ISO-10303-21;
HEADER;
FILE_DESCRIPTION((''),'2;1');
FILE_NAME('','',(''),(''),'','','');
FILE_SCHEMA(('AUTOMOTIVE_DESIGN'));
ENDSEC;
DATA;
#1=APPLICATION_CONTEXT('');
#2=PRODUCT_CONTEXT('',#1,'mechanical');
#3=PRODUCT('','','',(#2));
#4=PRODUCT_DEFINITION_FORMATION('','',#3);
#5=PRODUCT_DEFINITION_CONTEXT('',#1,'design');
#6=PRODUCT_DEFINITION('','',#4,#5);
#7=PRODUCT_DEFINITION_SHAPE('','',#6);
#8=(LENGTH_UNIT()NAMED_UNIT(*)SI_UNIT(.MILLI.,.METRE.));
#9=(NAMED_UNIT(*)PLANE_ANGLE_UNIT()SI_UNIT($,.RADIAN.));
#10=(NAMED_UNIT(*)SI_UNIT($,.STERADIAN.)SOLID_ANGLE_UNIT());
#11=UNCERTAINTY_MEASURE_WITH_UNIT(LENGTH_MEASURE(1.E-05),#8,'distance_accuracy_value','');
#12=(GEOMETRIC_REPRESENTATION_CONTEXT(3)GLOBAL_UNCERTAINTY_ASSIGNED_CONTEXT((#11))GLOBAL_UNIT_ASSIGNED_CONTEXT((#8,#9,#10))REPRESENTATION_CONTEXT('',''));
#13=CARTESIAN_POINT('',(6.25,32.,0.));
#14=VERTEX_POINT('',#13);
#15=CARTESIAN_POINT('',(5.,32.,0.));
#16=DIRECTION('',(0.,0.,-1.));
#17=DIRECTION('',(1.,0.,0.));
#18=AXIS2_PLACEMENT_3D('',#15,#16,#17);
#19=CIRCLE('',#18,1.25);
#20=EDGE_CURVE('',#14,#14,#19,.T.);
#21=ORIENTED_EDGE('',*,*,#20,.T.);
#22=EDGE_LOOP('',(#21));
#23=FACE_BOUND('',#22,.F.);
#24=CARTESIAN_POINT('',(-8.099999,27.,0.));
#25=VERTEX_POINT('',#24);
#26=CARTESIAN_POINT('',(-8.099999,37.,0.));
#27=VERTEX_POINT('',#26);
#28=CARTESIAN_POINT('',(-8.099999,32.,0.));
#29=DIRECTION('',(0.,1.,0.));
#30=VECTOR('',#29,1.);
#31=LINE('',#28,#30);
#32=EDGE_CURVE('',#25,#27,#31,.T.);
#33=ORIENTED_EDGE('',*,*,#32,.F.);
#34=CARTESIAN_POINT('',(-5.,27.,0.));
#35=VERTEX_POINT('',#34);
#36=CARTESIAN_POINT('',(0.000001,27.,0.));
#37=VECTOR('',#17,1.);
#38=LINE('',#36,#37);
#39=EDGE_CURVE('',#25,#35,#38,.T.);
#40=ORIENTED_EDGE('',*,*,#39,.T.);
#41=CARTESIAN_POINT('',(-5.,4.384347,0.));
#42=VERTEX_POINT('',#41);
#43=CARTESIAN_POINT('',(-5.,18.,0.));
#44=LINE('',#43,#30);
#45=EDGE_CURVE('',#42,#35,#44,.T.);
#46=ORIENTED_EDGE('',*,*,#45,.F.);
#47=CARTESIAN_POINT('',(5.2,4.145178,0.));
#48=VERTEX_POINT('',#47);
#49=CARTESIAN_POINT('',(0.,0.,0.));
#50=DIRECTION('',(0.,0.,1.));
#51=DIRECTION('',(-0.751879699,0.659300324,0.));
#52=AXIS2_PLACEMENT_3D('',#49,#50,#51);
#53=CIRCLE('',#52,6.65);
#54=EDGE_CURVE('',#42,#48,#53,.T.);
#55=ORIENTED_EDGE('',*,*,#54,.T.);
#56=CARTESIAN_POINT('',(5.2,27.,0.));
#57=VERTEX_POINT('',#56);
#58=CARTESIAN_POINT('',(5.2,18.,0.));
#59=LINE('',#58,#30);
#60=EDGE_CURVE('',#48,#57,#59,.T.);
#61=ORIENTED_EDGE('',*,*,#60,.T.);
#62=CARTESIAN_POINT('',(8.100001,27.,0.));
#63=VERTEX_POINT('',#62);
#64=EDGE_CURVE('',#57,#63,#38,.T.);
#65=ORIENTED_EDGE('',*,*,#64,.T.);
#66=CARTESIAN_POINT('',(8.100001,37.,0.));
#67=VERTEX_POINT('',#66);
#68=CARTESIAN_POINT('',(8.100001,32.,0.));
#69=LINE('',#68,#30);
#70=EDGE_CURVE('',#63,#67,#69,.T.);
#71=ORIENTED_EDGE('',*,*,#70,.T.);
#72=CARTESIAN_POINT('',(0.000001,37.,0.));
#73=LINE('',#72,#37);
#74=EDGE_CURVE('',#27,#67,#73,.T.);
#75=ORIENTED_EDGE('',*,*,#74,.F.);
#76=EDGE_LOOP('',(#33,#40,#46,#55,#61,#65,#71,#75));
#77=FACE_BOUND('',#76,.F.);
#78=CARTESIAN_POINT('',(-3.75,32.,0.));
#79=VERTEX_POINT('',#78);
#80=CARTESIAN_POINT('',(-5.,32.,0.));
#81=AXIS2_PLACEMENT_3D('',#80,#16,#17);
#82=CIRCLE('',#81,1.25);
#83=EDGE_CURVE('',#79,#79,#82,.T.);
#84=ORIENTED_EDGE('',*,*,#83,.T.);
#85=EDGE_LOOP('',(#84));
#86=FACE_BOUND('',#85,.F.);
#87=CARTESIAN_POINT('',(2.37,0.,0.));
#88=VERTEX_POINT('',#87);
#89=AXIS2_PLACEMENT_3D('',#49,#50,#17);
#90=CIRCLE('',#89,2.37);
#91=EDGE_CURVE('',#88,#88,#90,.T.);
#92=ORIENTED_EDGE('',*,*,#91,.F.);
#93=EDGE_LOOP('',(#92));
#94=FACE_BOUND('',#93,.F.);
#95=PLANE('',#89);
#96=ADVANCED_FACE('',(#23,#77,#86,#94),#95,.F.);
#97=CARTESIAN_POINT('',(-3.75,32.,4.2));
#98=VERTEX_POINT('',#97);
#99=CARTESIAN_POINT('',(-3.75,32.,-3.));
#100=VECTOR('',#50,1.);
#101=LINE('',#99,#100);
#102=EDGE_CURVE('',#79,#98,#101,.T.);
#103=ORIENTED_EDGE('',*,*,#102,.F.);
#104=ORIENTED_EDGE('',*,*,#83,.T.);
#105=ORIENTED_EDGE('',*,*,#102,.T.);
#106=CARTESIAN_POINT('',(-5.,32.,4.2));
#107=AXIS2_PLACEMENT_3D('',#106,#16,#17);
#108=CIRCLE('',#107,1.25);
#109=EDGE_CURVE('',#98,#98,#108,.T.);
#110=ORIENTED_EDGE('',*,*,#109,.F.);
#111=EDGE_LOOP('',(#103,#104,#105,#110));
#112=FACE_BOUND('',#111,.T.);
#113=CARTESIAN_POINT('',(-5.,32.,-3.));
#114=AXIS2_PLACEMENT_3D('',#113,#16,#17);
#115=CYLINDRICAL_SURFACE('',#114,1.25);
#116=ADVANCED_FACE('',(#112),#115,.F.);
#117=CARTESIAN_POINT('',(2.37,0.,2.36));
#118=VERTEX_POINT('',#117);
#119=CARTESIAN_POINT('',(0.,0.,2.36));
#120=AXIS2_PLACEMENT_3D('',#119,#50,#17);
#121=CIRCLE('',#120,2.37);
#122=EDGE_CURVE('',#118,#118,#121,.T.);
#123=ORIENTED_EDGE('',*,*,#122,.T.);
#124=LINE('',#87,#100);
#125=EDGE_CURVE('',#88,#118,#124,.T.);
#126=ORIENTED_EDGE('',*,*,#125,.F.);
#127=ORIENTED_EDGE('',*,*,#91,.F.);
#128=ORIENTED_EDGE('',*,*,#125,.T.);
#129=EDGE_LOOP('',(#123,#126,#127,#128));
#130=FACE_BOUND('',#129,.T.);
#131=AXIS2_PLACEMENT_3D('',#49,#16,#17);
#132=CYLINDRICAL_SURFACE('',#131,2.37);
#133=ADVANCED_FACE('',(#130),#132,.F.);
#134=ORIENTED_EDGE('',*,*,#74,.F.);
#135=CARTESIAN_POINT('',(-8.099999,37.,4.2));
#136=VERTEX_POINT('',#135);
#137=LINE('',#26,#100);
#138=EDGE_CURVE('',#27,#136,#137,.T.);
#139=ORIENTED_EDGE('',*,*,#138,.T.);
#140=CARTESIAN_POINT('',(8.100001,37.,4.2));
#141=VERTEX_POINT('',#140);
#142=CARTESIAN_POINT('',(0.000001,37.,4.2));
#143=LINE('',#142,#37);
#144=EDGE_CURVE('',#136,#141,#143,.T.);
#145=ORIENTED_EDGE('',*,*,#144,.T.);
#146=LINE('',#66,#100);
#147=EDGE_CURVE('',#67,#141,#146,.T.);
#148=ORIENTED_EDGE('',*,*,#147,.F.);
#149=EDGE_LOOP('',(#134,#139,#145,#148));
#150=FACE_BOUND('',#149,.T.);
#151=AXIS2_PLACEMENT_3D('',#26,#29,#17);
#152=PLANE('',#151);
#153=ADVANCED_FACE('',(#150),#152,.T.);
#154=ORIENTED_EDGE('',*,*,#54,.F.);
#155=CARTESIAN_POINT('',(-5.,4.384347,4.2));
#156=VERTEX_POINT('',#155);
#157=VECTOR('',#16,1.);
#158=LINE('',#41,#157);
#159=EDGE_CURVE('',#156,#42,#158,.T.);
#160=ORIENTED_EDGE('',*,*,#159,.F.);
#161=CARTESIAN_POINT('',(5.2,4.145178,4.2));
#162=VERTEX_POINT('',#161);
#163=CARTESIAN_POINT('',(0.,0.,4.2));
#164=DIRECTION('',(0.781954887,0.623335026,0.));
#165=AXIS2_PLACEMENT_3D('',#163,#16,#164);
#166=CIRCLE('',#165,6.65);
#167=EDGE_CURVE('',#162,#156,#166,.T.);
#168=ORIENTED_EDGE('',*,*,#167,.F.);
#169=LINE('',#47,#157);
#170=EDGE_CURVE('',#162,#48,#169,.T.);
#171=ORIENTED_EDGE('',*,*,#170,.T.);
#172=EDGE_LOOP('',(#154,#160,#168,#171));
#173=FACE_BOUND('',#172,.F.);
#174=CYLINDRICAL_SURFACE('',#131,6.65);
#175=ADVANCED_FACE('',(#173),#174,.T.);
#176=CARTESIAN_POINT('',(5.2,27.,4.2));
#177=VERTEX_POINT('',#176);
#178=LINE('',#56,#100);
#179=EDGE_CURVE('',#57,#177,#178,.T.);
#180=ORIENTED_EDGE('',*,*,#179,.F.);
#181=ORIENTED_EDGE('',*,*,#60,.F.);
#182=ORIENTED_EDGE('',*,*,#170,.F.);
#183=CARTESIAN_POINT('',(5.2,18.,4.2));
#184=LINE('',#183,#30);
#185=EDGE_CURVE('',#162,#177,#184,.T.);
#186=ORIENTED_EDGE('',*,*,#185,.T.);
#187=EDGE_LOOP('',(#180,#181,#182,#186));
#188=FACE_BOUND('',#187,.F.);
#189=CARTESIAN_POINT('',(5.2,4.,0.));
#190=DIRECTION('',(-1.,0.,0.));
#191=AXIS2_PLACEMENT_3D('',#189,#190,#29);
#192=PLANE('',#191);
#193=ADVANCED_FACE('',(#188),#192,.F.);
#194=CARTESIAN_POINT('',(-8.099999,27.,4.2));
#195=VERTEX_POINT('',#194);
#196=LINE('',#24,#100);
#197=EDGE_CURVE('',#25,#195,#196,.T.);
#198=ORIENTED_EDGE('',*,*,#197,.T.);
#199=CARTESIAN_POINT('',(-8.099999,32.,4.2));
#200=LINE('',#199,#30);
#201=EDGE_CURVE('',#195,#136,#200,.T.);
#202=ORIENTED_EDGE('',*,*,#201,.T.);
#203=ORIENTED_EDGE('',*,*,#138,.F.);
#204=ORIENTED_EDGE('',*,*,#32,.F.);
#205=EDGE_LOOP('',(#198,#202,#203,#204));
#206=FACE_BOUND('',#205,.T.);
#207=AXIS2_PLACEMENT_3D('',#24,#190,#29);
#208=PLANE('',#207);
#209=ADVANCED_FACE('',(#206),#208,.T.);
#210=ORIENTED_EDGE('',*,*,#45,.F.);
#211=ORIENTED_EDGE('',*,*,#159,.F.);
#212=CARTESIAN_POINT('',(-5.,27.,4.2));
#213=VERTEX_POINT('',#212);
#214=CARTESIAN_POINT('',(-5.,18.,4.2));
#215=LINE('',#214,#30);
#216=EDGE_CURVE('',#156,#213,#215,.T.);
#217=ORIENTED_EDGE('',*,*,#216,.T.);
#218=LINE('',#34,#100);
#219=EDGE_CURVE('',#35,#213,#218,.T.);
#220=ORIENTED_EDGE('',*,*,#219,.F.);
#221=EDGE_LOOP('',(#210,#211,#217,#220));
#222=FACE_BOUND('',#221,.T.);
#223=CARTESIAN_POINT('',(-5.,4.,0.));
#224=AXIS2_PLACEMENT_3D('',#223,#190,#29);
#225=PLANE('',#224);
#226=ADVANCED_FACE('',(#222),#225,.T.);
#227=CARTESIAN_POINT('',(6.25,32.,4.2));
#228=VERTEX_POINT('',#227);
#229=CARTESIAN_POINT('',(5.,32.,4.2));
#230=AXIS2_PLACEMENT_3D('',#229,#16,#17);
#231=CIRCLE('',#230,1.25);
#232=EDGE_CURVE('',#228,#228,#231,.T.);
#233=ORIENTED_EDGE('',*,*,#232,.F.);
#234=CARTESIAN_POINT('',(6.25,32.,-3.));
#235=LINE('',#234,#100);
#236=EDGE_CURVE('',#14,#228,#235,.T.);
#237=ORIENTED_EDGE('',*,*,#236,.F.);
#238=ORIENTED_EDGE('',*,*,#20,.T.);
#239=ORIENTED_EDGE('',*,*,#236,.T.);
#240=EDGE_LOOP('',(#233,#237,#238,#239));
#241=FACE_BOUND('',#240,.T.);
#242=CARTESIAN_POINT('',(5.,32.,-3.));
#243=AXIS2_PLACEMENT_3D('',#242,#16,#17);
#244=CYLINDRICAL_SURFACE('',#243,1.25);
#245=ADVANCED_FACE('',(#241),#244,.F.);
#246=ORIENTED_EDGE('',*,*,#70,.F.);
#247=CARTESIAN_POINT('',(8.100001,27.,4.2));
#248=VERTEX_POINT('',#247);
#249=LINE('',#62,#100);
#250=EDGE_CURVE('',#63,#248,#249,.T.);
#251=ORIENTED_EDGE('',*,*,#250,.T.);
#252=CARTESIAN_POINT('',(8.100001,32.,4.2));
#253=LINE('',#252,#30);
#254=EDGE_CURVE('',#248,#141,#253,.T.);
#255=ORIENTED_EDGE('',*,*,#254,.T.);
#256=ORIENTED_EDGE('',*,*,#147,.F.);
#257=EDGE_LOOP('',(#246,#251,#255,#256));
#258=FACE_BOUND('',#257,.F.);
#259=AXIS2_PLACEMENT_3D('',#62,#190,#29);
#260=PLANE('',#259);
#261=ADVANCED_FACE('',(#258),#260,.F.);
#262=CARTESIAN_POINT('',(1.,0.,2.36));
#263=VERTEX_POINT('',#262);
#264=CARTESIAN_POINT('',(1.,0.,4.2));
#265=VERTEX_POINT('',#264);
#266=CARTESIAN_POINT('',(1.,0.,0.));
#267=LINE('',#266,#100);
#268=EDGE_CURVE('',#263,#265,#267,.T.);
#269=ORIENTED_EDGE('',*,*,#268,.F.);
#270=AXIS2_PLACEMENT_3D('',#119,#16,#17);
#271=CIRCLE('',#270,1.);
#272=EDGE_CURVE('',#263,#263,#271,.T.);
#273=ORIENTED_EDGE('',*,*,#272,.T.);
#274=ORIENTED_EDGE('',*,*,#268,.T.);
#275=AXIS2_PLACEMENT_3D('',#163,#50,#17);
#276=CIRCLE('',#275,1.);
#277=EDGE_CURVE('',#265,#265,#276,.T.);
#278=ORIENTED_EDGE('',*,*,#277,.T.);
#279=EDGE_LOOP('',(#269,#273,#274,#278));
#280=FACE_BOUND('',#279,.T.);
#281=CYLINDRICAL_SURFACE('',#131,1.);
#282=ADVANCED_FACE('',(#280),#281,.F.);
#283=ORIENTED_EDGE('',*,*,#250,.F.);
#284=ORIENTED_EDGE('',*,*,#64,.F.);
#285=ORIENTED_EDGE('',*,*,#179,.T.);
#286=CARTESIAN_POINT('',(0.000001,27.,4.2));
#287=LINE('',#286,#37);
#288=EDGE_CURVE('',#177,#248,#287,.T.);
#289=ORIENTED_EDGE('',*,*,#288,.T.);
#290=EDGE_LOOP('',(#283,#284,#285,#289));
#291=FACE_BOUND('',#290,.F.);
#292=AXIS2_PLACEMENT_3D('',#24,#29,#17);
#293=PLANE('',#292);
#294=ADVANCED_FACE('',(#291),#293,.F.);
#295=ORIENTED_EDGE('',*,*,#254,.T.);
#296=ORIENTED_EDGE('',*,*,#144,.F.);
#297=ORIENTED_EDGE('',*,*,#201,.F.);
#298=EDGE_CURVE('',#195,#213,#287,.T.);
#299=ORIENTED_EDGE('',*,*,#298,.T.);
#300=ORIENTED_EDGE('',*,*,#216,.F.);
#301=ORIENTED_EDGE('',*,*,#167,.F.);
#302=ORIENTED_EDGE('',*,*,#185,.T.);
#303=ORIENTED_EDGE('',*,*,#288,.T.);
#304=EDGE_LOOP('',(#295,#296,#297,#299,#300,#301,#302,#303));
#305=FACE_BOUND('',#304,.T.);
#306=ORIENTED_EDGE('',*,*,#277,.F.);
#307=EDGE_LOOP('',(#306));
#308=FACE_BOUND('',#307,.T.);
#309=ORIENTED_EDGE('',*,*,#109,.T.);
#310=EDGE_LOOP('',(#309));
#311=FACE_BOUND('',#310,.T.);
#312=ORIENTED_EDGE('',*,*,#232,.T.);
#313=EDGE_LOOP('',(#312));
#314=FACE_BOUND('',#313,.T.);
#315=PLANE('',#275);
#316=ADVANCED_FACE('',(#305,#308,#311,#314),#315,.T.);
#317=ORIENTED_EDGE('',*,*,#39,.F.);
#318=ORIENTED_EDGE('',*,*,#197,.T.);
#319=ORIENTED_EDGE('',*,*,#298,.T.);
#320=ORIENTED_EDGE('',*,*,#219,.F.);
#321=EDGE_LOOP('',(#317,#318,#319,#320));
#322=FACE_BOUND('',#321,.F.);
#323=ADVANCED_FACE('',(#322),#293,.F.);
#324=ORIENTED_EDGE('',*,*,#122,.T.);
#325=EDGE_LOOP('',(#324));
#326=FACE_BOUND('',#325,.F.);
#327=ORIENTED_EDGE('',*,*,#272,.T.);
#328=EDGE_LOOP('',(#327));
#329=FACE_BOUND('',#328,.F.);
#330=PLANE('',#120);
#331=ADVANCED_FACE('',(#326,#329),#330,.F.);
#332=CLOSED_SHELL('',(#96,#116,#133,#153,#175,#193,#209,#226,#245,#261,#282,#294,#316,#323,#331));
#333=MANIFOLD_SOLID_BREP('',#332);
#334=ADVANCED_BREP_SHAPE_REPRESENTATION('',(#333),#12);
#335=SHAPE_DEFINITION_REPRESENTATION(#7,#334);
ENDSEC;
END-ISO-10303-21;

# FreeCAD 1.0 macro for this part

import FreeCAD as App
import Part
import Sketcher
Q = App.Units.Quantity


def add_polygon(sketch, points):
    """Adds a closed chain of lines whose ends are joined by coincident constraints."""
    first, n = sketch.GeometryCount, len(points)
    for a, b in zip(points, points[1:] + points[:1]):
        sketch.addGeometry(Part.LineSegment(App.Vector(*a, 0), App.Vector(*b, 0)), False)
    for i in range(n):
        sketch.addConstraint(Sketcher.Constraint("Coincident", first + i, 2, first + (i + 1) % n, 1))

doc = App.newDocument("Part")
params = doc.addObject("Spreadsheet::Sheet", "Params")
for row, (alias, value) in enumerate([
    ("sketch1_diameter", "2.5 mm"),
    ("pad1_length", "10 mm"),
    ("sketch2_diameter", "2.5 mm"),
    ("pad2_length", "10 mm"),
    ("sketch3_diameter", "2 mm"),
    ("pad3_length", "4.2 mm"),
    ("sketch4_diameter", "4.74 mm"),
    ("pad4_length", "2.36 mm"),
    ("sketch5_height", "28 mm"),
    ("sketch5_width", "10.2 mm"),
    ("pad5_length", "4.2 mm"),
    ("sketch6_diameter", "13.3 mm"),
    ("pad6_length", "4.2 mm"),
    ("sketch7_height", "10 mm"),
    ("sketch7_width", "16.200001 mm"),
    ("pad7_length", "4.2 mm"),
], start=1):
    params.set(f"A{row}", alias)
    params.set(f"B{row}", "=" + value)
    params.setAlias(f"B{row}", alias)

body = doc.addObject("PartDesign::Body", "Body")

# Sketch on XY plane
sketch1 = body.newObject("Sketcher::SketchObject", "Sketch")
sketch1.AttachmentSupport = (doc.getObject("XY_Plane"), [""])
sketch1.MapMode = "FlatFace"
sketch1.AttachmentOffset = App.Placement(App.Vector(0, 0, -3), App.Rotation())
sketch1.addGeometry(Part.Circle(App.Vector(5, 32, 0), App.Vector(0, 0, 1), 1.25), False)
sketch1.addConstraint([
    Sketcher.Constraint("Diameter", 0, Q("2.5 mm")),
    Sketcher.Constraint("DistanceX", -1, 1, 0, 3, Q("5 mm")),
    Sketcher.Constraint("DistanceY", -1, 1, 0, 3, Q("32 mm")),
])
sketch1.setExpression("Constraints[0]", "Params.sketch1_diameter")
pad1 = body.newObject("PartDesign::Pad", "Pad")
pad1.Profile = sketch1
pad1.setExpression("Length", "Params.pad1_length")
body2 = doc.addObject("PartDesign::Body", "Body001")

# Sketch on XY plane
sketch2 = body2.newObject("Sketcher::SketchObject", "Sketch001")
sketch2.AttachmentSupport = (doc.getObject("XY_Plane001"), [""])
sketch2.MapMode = "FlatFace"
sketch2.AttachmentOffset = App.Placement(App.Vector(0, 0, -3), App.Rotation())
sketch2.addGeometry(Part.Circle(App.Vector(-5, 32, 0), App.Vector(0, 0, 1), 1.25), False)
sketch2.addConstraint([
    Sketcher.Constraint("Diameter", 0, Q("2.5 mm")),
    Sketcher.Constraint("DistanceX", 0, 3, -1, 1, Q("5 mm")),
    Sketcher.Constraint("DistanceY", -1, 1, 0, 3, Q("32 mm")),
])
sketch2.setExpression("Constraints[0]", "Params.sketch2_diameter")
pad2 = body2.newObject("PartDesign::Pad", "Pad001")
pad2.Profile = sketch2
pad2.setExpression("Length", "Params.pad2_length")
body3 = doc.addObject("PartDesign::Body", "Body002")

# Sketch on XY plane
sketch3 = body3.newObject("Sketcher::SketchObject", "Sketch002")
sketch3.AttachmentSupport = (doc.getObject("XY_Plane002"), [""])
sketch3.MapMode = "FlatFace"
sketch3.addGeometry(Part.Circle(App.Vector(0, 0, 0), App.Vector(0, 0, 1), 1), False)
sketch3.addConstraint([
    Sketcher.Constraint("Coincident", 0, 3, -1, 1),
    Sketcher.Constraint("Diameter", 0, Q("2 mm")),
])
sketch3.setExpression("Constraints[1]", "Params.sketch3_diameter")
pad3 = body3.newObject("PartDesign::Pad", "Pad002")
pad3.Profile = sketch3
pad3.setExpression("Length", "Params.pad3_length")
body4 = doc.addObject("PartDesign::Body", "Body003")
body4.AllowCompound = True

# Sketch on XY plane
sketch4 = body4.newObject("Sketcher::SketchObject", "Sketch003")
sketch4.AttachmentSupport = (doc.getObject("XY_Plane003"), [""])
sketch4.MapMode = "FlatFace"
sketch4.addGeometry(Part.Circle(App.Vector(0, 0, 0), App.Vector(0, 0, 1), 2.37), False)
sketch4.addConstraint([
    Sketcher.Constraint("Coincident", 0, 3, -1, 1),
    Sketcher.Constraint("Diameter", 0, Q("4.74 mm")),
])
sketch4.setExpression("Constraints[1]", "Params.sketch4_diameter")
pad4 = body4.newObject("PartDesign::Pad", "Pad003")
pad4.Profile = sketch4
pad4.setExpression("Length", "Params.pad4_length")
doc.recompute()

boolean = body4.newObject("PartDesign::Boolean", "Boolean")
boolean.Type = "Fuse"
boolean.addObjects([body])
doc.recompute()

boolean2 = body4.newObject("PartDesign::Boolean", "Boolean001")
boolean2.Type = "Fuse"
boolean2.addObjects([body2])
doc.recompute()

boolean3 = body4.newObject("PartDesign::Boolean", "Boolean002")
boolean3.Type = "Fuse"
boolean3.addObjects([body3])
body5 = doc.addObject("PartDesign::Body", "Body004")

# Sketch on XY plane
sketch5 = body5.newObject("Sketcher::SketchObject", "Sketch004")
sketch5.AttachmentSupport = (doc.getObject("XY_Plane004"), [""])
sketch5.MapMode = "FlatFace"
add_polygon(sketch5, [(-5, 32), (-5, 4), (5.2, 4), (5.2, 32)])  # lines 0-3
sketch5.addConstraint([
    Sketcher.Constraint("Vertical", 0),
    Sketcher.Constraint("Horizontal", 1),
    Sketcher.Constraint("Vertical", 2),
    Sketcher.Constraint("Horizontal", 3),
    Sketcher.Constraint("DistanceY", 0, 2, 0, 1, Q("28 mm")),
    Sketcher.Constraint("DistanceX", 1, 1, 1, 2, Q("10.2 mm")),
    Sketcher.Constraint("DistanceX", 0, 2, -1, 1, Q("5 mm")),
    Sketcher.Constraint("DistanceY", -1, 1, 0, 2, Q("4 mm")),
])
sketch5.setExpression("Constraints[8]", "Params.sketch5_height")
sketch5.setExpression("Constraints[9]", "Params.sketch5_width")
pad5 = body5.newObject("PartDesign::Pad", "Pad004")
pad5.Profile = sketch5
pad5.setExpression("Length", "Params.pad5_length")
body6 = doc.addObject("PartDesign::Body", "Body005")

# Sketch on XY plane
sketch6 = body6.newObject("Sketcher::SketchObject", "Sketch005")
sketch6.AttachmentSupport = (doc.getObject("XY_Plane005"), [""])
sketch6.MapMode = "FlatFace"
sketch6.addGeometry(Part.Circle(App.Vector(0, 0, 0), App.Vector(0, 0, 1), 6.65), False)
sketch6.addConstraint([
    Sketcher.Constraint("Coincident", 0, 3, -1, 1),
    Sketcher.Constraint("Diameter", 0, Q("13.3 mm")),
])
sketch6.setExpression("Constraints[1]", "Params.sketch6_diameter")
pad6 = body6.newObject("PartDesign::Pad", "Pad005")
pad6.Profile = sketch6
pad6.setExpression("Length", "Params.pad6_length")
body7 = doc.addObject("PartDesign::Body", "Body006")

# Sketch on XY plane
sketch7 = body7.newObject("Sketcher::SketchObject", "Sketch006")
sketch7.AttachmentSupport = (doc.getObject("XY_Plane006"), [""])
sketch7.MapMode = "FlatFace"
add_polygon(sketch7, [(-8.099999, 37), (-8.099999, 27), (8.100001, 27), (8.100001, 37)])  # lines 0-3
sketch7.addConstraint([
    Sketcher.Constraint("Vertical", 0),
    Sketcher.Constraint("Horizontal", 1),
    Sketcher.Constraint("Vertical", 2),
    Sketcher.Constraint("Horizontal", 3),
    Sketcher.Constraint("DistanceY", 0, 2, 0, 1, Q("10 mm")),
    Sketcher.Constraint("DistanceX", 1, 1, 1, 2, Q("16.200001 mm")),
    Sketcher.Constraint("DistanceY", -1, 1, 0, 2, Q("27 mm")),
    Sketcher.Constraint("DistanceX", 0, 2, -1, 1, Q("8.099999 mm")),
])
sketch7.setExpression("Constraints[8]", "Params.sketch7_height")
sketch7.setExpression("Constraints[9]", "Params.sketch7_width")
pad7 = body7.newObject("PartDesign::Pad", "Pad006")
pad7.Profile = sketch7
pad7.setExpression("Length", "Params.pad7_length")
doc.recompute()

boolean4 = body7.newObject("PartDesign::Boolean", "Boolean003")
boolean4.Type = "Fuse"
boolean4.addObjects([body5])
doc.recompute()

boolean5 = body7.newObject("PartDesign::Boolean", "Boolean004")
boolean5.Type = "Fuse"
boolean5.addObjects([body6])
doc.recompute()

boolean6 = body7.newObject("PartDesign::Boolean", "Boolean005")
boolean6.Type = "Cut"
boolean6.addObjects([body4])

doc.recompute()
